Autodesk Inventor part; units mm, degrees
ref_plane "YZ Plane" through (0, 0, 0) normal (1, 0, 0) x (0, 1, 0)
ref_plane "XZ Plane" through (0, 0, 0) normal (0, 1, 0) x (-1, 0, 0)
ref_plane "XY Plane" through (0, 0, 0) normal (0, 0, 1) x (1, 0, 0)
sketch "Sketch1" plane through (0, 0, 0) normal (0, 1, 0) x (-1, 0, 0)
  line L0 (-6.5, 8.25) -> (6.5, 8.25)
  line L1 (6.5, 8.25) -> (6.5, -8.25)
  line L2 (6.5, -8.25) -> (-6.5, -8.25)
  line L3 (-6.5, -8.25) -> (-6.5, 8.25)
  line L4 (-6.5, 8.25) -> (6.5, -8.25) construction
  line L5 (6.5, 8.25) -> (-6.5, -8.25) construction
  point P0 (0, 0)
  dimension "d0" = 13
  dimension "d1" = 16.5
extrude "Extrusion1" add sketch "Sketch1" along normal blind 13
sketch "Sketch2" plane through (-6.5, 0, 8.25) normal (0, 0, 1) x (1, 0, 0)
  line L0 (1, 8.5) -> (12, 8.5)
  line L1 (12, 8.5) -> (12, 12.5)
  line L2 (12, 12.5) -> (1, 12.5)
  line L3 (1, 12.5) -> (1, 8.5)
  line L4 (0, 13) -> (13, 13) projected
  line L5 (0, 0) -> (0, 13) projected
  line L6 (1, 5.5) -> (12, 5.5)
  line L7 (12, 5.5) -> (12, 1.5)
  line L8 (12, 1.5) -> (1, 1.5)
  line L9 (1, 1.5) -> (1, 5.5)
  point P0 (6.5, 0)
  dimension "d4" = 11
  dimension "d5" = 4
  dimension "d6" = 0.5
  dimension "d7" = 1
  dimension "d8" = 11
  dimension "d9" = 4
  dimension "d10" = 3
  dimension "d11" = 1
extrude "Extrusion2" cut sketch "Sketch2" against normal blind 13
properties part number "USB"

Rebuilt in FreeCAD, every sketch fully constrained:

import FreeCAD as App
import Part
import Sketcher
from FreeCAD import Vector


def add_polygon(sketch, points):
    """Adds a closed chain of lines whose ends are joined by coincident constraints."""
    first, n = sketch.GeometryCount, len(points)
    for a, b in zip(points, points[1:] + points[:1]):
        sketch.addGeometry(Part.LineSegment(App.Vector(*a, 0), App.Vector(*b, 0)), False)
    for i in range(n):
        sketch.addConstraint(Sketcher.Constraint("Coincident", first + i, 2, first + (i + 1) % n, 1))

doc = App.newDocument("Part")
body = doc.addObject("PartDesign::Body", "Body")

# Sketch on XZ plane
sketch1 = body.newObject("Sketcher::SketchObject", "Sketch")
sketch1.AttachmentSupport = (doc.getObject("XZ_Plane"), [""])
sketch1.MapMode = "FlatFace"
add_polygon(sketch1, [(-6.5, 8.25), (6.5, 8.25), (6.5, -8.25), (-6.5, -8.25)])  # lines 0-3
sketch1.addConstraint([
    Sketcher.Constraint("Horizontal", 0),
    Sketcher.Constraint("Vertical", 1),
    Sketcher.Constraint("Horizontal", 2),
    Sketcher.Constraint("Vertical", 3),
    Sketcher.Constraint("Symmetric", 0, 2, 2, 2, -1, 1),
    Sketcher.Constraint("DistanceX", 0, 1, 0, 2, 13.0),
    Sketcher.Constraint("DistanceY", 1, 2, 1, 1, 16.5),
])
pad1 = body.newObject("PartDesign::Pad", "Pad")
pad1.Profile = sketch1
pad1.Length = 13
pad1.Reversed = True

# Sketch on XY plane
sketch2 = body.newObject("Sketcher::SketchObject", "Sketch001")
sketch2.AttachmentSupport = (doc.getObject("XY_Plane"), [""])
sketch2.MapMode = "FlatFace"
sketch2.AttachmentOffset = App.Placement(Vector(0, 0, 8.25), App.Rotation())
add_polygon(sketch2, [(-5.5, 12.5), (-5.5, 8.5), (5.5, 8.5), (5.5, 12.5)])  # lines 0-3
add_polygon(sketch2, [(5.5, 5.5), (-5.5, 5.5), (-5.5, 1.5), (5.5, 1.5)])  # lines 4-7
sketch2.addConstraint([
    Sketcher.Constraint("Vertical", 0),
    Sketcher.Constraint("Horizontal", 1),
    Sketcher.Constraint("Vertical", 2),
    Sketcher.Constraint("Horizontal", 3),
    Sketcher.Constraint("Horizontal", 4),
    Sketcher.Constraint("Vertical", 5),
    Sketcher.Constraint("Horizontal", 6),
    Sketcher.Constraint("Vertical", 7),
    Sketcher.Constraint("Vertical", 3, 2, 4, 2),
    Sketcher.Constraint("Vertical", 2, 2, 6, 2),
    Sketcher.Constraint("Equal", 2, 5),
    Sketcher.Constraint("DistanceX", 1, 1, 1, 2, 11.0),
    Sketcher.Constraint("DistanceY", 0, 2, 0, 1, 4.0),
    Sketcher.Constraint("DistanceY", 4, 2, 0, 2, 3.0),
    Sketcher.Constraint("DistanceX", 0, 2, -1, 1, 5.5),
    Sketcher.Constraint("DistanceY", -1, 1, 0, 2, 8.5),
])
pocket1 = body.newObject("PartDesign::Pocket", "Pocket")
pocket1.Profile = sketch2
pocket1.Length = 13

doc.recompute()
